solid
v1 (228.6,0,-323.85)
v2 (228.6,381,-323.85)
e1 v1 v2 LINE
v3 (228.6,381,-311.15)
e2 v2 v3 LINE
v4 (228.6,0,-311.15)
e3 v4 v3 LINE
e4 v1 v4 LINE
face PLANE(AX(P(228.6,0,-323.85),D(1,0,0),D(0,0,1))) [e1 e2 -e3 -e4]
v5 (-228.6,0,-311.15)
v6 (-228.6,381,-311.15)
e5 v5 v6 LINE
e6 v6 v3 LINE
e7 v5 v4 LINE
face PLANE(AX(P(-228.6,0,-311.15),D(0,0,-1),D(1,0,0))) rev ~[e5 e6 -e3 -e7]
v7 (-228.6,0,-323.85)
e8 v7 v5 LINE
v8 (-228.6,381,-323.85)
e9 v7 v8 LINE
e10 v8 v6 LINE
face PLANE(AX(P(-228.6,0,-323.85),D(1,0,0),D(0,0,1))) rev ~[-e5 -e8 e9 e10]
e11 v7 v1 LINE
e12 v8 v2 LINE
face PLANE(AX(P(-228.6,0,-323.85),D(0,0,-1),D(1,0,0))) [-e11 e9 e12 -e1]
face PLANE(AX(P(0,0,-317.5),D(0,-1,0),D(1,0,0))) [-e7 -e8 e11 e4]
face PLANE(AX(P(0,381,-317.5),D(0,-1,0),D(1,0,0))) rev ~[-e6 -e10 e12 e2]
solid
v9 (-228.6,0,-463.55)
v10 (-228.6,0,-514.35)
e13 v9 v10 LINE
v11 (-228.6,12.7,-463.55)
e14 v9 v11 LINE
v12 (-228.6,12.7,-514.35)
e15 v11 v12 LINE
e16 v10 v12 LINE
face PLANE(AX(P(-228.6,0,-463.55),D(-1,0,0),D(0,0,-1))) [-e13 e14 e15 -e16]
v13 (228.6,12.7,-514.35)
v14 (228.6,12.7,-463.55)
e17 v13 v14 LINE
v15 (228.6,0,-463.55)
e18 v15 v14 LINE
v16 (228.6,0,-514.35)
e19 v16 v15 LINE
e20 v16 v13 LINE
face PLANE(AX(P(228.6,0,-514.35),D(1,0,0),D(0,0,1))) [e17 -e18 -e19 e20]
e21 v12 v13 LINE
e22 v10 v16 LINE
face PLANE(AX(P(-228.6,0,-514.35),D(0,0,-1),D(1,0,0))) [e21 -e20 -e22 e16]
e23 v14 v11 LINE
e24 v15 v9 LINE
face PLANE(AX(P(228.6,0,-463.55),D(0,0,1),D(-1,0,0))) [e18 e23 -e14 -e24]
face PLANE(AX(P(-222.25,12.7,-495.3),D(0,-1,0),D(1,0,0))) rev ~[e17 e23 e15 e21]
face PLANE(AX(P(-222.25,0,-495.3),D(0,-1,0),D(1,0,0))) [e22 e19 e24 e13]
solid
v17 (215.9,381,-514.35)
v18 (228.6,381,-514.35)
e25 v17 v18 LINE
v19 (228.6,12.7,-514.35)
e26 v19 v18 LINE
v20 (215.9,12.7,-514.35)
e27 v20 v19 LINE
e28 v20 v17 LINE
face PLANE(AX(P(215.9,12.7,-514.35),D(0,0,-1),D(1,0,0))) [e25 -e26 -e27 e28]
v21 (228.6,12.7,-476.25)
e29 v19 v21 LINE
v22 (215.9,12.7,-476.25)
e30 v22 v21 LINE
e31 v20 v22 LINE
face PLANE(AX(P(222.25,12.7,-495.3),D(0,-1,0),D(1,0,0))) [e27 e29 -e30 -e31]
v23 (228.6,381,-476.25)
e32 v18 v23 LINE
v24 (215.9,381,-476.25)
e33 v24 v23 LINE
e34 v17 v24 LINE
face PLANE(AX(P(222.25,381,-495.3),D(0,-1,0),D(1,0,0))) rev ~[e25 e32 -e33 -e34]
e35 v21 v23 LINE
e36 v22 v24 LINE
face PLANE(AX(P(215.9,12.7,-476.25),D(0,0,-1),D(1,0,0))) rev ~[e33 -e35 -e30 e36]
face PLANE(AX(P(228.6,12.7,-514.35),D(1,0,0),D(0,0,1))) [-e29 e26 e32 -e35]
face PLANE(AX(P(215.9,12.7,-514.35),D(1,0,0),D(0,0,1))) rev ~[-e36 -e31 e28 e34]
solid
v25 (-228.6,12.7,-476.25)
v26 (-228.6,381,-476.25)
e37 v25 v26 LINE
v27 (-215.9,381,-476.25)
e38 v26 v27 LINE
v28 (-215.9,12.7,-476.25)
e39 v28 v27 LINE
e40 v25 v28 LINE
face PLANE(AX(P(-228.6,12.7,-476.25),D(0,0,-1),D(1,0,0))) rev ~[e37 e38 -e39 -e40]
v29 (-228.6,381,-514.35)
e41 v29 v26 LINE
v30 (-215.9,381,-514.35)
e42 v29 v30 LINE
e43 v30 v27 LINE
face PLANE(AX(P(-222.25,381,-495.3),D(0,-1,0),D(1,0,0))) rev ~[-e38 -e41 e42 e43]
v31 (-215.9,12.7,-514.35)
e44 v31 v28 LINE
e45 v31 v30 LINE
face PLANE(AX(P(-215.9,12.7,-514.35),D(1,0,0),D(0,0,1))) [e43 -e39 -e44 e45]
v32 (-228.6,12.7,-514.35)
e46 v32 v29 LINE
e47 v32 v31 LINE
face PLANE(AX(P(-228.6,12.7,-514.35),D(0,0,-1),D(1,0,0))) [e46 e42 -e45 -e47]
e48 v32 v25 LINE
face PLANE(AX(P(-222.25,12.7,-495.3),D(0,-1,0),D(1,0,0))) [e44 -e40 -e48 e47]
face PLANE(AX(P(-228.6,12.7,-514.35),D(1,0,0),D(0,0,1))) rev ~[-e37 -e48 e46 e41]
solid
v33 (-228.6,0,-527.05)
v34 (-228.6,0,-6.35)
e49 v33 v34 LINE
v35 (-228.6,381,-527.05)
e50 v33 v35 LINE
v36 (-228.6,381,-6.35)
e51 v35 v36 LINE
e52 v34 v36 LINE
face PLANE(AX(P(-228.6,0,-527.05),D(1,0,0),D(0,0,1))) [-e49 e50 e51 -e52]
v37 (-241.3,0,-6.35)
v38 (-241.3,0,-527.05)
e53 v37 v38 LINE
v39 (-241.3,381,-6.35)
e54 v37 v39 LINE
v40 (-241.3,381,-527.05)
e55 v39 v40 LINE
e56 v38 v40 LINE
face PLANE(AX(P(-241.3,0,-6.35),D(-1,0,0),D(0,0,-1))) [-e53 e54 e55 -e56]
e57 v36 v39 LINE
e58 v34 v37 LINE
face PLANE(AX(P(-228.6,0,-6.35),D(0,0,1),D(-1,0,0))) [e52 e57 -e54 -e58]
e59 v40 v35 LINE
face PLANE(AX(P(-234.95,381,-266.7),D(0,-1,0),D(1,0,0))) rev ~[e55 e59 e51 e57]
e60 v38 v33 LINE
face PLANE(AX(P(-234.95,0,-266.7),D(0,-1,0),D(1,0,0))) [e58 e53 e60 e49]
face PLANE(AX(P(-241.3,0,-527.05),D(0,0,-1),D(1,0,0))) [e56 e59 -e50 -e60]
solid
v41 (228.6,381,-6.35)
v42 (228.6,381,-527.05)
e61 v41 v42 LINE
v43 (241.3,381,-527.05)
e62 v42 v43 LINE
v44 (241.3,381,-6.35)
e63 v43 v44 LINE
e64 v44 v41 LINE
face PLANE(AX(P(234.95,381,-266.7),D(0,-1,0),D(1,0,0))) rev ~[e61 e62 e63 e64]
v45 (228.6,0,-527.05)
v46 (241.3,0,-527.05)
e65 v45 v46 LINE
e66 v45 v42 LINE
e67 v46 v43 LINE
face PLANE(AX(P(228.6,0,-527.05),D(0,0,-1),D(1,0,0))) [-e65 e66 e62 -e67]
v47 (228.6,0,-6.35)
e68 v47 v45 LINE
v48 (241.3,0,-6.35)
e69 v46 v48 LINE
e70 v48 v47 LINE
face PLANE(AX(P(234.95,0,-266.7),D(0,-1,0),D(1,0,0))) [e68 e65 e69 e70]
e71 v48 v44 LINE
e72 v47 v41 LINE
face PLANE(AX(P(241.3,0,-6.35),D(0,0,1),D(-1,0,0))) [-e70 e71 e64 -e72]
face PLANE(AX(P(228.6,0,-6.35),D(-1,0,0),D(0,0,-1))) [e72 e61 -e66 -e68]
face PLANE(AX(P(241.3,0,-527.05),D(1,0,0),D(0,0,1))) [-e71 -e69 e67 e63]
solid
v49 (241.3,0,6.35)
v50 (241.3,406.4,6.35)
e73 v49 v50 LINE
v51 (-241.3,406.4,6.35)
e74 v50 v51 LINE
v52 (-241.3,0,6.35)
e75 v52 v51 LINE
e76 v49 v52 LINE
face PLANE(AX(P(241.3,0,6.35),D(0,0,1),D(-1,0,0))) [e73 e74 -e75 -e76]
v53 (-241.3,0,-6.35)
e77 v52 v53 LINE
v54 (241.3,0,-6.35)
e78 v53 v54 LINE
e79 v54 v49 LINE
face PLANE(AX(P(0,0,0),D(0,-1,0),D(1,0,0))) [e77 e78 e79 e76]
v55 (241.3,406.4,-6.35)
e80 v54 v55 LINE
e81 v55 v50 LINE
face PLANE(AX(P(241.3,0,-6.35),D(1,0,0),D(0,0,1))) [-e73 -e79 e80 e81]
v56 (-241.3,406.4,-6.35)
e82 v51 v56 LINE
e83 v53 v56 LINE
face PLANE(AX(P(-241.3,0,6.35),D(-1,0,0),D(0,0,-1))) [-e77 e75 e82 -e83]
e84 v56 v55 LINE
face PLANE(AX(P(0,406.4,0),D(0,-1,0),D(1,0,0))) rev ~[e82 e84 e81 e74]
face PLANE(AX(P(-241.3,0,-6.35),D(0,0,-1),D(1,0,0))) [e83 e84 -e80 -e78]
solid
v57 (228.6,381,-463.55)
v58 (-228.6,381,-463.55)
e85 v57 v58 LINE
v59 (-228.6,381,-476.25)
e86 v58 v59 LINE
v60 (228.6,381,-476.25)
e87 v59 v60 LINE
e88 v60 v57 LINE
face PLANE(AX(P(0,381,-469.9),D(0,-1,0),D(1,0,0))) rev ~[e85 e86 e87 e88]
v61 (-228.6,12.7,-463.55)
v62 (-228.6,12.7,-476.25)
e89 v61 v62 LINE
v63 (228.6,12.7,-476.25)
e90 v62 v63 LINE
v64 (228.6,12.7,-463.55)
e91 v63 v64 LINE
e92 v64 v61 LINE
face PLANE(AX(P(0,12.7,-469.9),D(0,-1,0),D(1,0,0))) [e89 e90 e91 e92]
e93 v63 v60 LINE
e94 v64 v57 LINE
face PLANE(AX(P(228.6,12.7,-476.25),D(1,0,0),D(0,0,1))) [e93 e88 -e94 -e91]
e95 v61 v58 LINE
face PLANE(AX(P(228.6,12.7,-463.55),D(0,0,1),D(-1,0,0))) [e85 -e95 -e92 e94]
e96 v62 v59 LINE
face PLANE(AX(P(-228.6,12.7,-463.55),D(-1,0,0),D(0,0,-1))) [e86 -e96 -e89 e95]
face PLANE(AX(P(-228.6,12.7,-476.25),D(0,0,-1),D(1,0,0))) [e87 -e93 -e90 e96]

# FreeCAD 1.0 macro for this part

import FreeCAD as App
import Part
import Sketcher

V = App.Vector
Q = App.Units.Quantity

doc = App.newDocument("Part")
body = doc.addObject("PartDesign::Body", "Body")

# Sketch on XZ plane
sketch1 = body.newObject("Sketcher::SketchObject", "Sketch")
sketch1.AttachmentSupport = (doc.getObject("XZ_Plane"), [""])
sketch1.MapMode = "FlatFace"
sketch1.addGeometry([
    Part.LineSegment(V(241, 6, 0), V(-241, 6, 0)),
    Part.LineSegment(V(-241, 6, 0), V(-241, -6, 0)),
    Part.LineSegment(V(-241, -6, 0), V(241, -6, 0)),
    Part.LineSegment(V(241, -6, 0), V(241, 6, 0)),
], False)
sketch1.addConstraint([
    Sketcher.Constraint("Coincident", 0, 2, 1, 1),
    Sketcher.Constraint("Coincident", 1, 2, 2, 1),
    Sketcher.Constraint("Coincident", 2, 2, 3, 1),
    Sketcher.Constraint("Coincident", 3, 2, 0, 1),
    Sketcher.Constraint("Horizontal", 0),
    Sketcher.Constraint("Vertical", 1),
    Sketcher.Constraint("Horizontal", 2),
    Sketcher.Constraint("Vertical", 3),
    Sketcher.Constraint("Symmetric", 0, 2, 2, 2, -1, 1),
    Sketcher.Constraint("DistanceX", 0, 2, 0, 1, Q("19 in")),
    Sketcher.Constraint("DistanceY", 1, 2, 1, 1, Q("0.5 in")),
])
pad1 = body.newObject("PartDesign::Pad", "Pad")
pad1.Profile = sketch1
pad1.Length = Q("16 in")
pad1.Reversed = True
body2 = doc.addObject("PartDesign::Body", "Body001")

# Sketch on XZ plane
sketch2 = body2.newObject("Sketcher::SketchObject", "Sketch001")
sketch2.AttachmentSupport = (doc.getObject("XZ_Plane001"), [""])
sketch2.MapMode = "FlatFace"
sketch2.addGeometry([
    Part.LineSegment(V(-229, -6, 0), V(-241, -6, 0)),
    Part.LineSegment(V(-241, -6, 0), V(-241, -527, 0)),
    Part.LineSegment(V(-241, -527, 0), V(-229, -527, 0)),
    Part.LineSegment(V(-229, -527, 0), V(-229, -6, 0)),
], False)
sketch2.addConstraint([
    Sketcher.Constraint("Coincident", 0, 2, 1, 1),
    Sketcher.Constraint("Coincident", 1, 2, 2, 1),
    Sketcher.Constraint("Coincident", 2, 2, 3, 1),
    Sketcher.Constraint("Coincident", 3, 2, 0, 1),
    Sketcher.Constraint("Horizontal", 0),
    Sketcher.Constraint("Vertical", 1),
    Sketcher.Constraint("Horizontal", 2),
    Sketcher.Constraint("Vertical", 3),
    Sketcher.Constraint("DistanceX", 0, 2, 0, 1, Q("0.5 in")),
    Sketcher.Constraint("DistanceY", 1, 2, 1, 1, Q("20.5 in")),
    Sketcher.Constraint("DistanceX", 2, 2, -1, 1, Q("9 in")),
    Sketcher.Constraint("DistanceY", 0, 2, -1, 1, Q("0.25 in")),
])
pad2 = body2.newObject("PartDesign::Pad", "Pad001")
pad2.Profile = sketch2
pad2.Length = Q("15 in")
pad2.Reversed = True
body3 = doc.addObject("PartDesign::Body", "Body002")

# Sketch on XZ plane
sketch3 = body3.newObject("Sketcher::SketchObject", "Sketch002")
sketch3.AttachmentSupport = (doc.getObject("XZ_Plane002"), [""])
sketch3.MapMode = "FlatFace"
sketch3.addGeometry([
    Part.LineSegment(V(241, -527, 0), V(241, -6, 0)),
    Part.LineSegment(V(241, -6, 0), V(229, -6, 0)),
    Part.LineSegment(V(229, -6, 0), V(229, -527, 0)),
    Part.LineSegment(V(229, -527, 0), V(241, -527, 0)),
], False)
sketch3.addConstraint([
    Sketcher.Constraint("Coincident", 0, 2, 1, 1),
    Sketcher.Constraint("Coincident", 1, 2, 2, 1),
    Sketcher.Constraint("Coincident", 2, 2, 3, 1),
    Sketcher.Constraint("Coincident", 3, 2, 0, 1),
    Sketcher.Constraint("Vertical", 0),
    Sketcher.Constraint("Horizontal", 1),
    Sketcher.Constraint("Vertical", 2),
    Sketcher.Constraint("Horizontal", 3),
    Sketcher.Constraint("DistanceX", 1, 2, 1, 1, Q("0.5 in")),
    Sketcher.Constraint("DistanceY", 0, 1, 0, 2, Q("20.5 in")),
    Sketcher.Constraint("DistanceX", -1, 1, 1, 2, Q("9 in")),
    Sketcher.Constraint("DistanceY", 0, 2, -1, 1, Q("0.25 in")),
])
pad3 = body3.newObject("PartDesign::Pad", "Pad002")
pad3.Profile = sketch3
pad3.Length = Q("15 in")
pad3.Reversed = True
body4 = doc.addObject("PartDesign::Body", "Body003")

# Sketch on XZ plane
sketch4 = body4.newObject("Sketcher::SketchObject", "Sketch003")
sketch4.AttachmentSupport = (doc.getObject("XZ_Plane003"), [""])
sketch4.MapMode = "FlatFace"
sketch4.AttachmentOffset = App.Placement(V(0, 0, -0.5 * 25.4), App.Rotation())
sketch4.addGeometry([
    Part.LineSegment(V(229, -464, 0), V(-229, -464, 0)),
    Part.LineSegment(V(-229, -464, 0), V(-229, -476, 0)),
    Part.LineSegment(V(-229, -476, 0), V(229, -476, 0)),
    Part.LineSegment(V(229, -476, 0), V(229, -464, 0)),
], False)
sketch4.addConstraint([
    Sketcher.Constraint("Coincident", 0, 2, 1, 1),
    Sketcher.Constraint("Coincident", 1, 2, 2, 1),
    Sketcher.Constraint("Coincident", 2, 2, 3, 1),
    Sketcher.Constraint("Coincident", 3, 2, 0, 1),
    Sketcher.Constraint("Horizontal", 0),
    Sketcher.Constraint("Vertical", 1),
    Sketcher.Constraint("Horizontal", 2),
    Sketcher.Constraint("Vertical", 3),
    Sketcher.Constraint("DistanceX", 0, 2, 0, 1, Q("18 in")),
    Sketcher.Constraint("DistanceY", 1, 2, 1, 1, Q("0.5 in")),
    Sketcher.Constraint("DistanceX", 0, 2, -1, 1, Q("9 in")),
    Sketcher.Constraint("DistanceY", 0, 2, -1, 1, Q("18.25 in")),
])
pad4 = body4.newObject("PartDesign::Pad", "Pad003")
pad4.Profile = sketch4
pad4.Length = Q("14.5 in")
pad4.Reversed = True
body5 = doc.addObject("PartDesign::Body", "Body004")

# Sketch on XZ plane
sketch5 = body5.newObject("Sketcher::SketchObject", "Sketch004")
sketch5.AttachmentSupport = (doc.getObject("XZ_Plane004"), [""])
sketch5.MapMode = "FlatFace"
sketch5.AttachmentOffset = App.Placement(V(0, 0, -0.5 * 25.4), App.Rotation())
sketch5.addGeometry([
    Part.LineSegment(V(-229, -476, 0), V(-229, -514, 0)),
    Part.LineSegment(V(-229, -514, 0), V(-216, -514, 0)),
    Part.LineSegment(V(-216, -514, 0), V(-216, -476, 0)),
    Part.LineSegment(V(-216, -476, 0), V(-229, -476, 0)),
], False)
sketch5.addConstraint([
    Sketcher.Constraint("Coincident", 0, 2, 1, 1),
    Sketcher.Constraint("Coincident", 1, 2, 2, 1),
    Sketcher.Constraint("Coincident", 2, 2, 3, 1),
    Sketcher.Constraint("Coincident", 3, 2, 0, 1),
    Sketcher.Constraint("Vertical", 0),
    Sketcher.Constraint("Horizontal", 1),
    Sketcher.Constraint("Vertical", 2),
    Sketcher.Constraint("Horizontal", 3),
    Sketcher.Constraint("DistanceX", 1, 1, 1, 2, Q("0.5 in")),
    Sketcher.Constraint("DistanceY", 0, 2, 0, 1, Q("1.5 in")),
    Sketcher.Constraint("DistanceX", 0, 2, -1, 1, Q("9 in")),
    Sketcher.Constraint("DistanceY", 0, 2, -1, 1, Q("20.25 in")),
])
pad5 = body5.newObject("PartDesign::Pad", "Pad004")
pad5.Profile = sketch5
pad5.Length = Q("14.5 in")
pad5.Reversed = True
body6 = doc.addObject("PartDesign::Body", "Body005")

# Sketch on XZ plane
sketch6 = body6.newObject("Sketcher::SketchObject", "Sketch005")
sketch6.AttachmentSupport = (doc.getObject("XZ_Plane005"), [""])
sketch6.MapMode = "FlatFace"
sketch6.AttachmentOffset = App.Placement(V(0, 0, -0.5 * 25.4), App.Rotation())
sketch6.addGeometry([
    Part.LineSegment(V(216, -476, 0), V(216, -514, 0)),
    Part.LineSegment(V(216, -514, 0), V(229, -514, 0)),
    Part.LineSegment(V(229, -514, 0), V(229, -476, 0)),
    Part.LineSegment(V(229, -476, 0), V(216, -476, 0)),
], False)
sketch6.addConstraint([
    Sketcher.Constraint("Coincident", 0, 2, 1, 1),
    Sketcher.Constraint("Coincident", 1, 2, 2, 1),
    Sketcher.Constraint("Coincident", 2, 2, 3, 1),
    Sketcher.Constraint("Coincident", 3, 2, 0, 1),
    Sketcher.Constraint("Vertical", 0),
    Sketcher.Constraint("Horizontal", 1),
    Sketcher.Constraint("Vertical", 2),
    Sketcher.Constraint("Horizontal", 3),
    Sketcher.Constraint("DistanceX", 1, 1, 1, 2, Q("0.5 in")),
    Sketcher.Constraint("DistanceY", 0, 2, 0, 1, Q("1.5 in")),
    Sketcher.Constraint("DistanceX", -1, 1, 1, 2, Q("9 in")),
    Sketcher.Constraint("DistanceY", 0, 2, -1, 1, Q("20.25 in")),
])
pad6 = body6.newObject("PartDesign::Pad", "Pad005")
pad6.Profile = sketch6
pad6.Length = Q("14.5 in")
pad6.Reversed = True
body7 = doc.addObject("PartDesign::Body", "Body006")

# Sketch on XZ plane
sketch7 = body7.newObject("Sketcher::SketchObject", "Sketch006")
sketch7.AttachmentSupport = (doc.getObject("XZ_Plane006"), [""])
sketch7.MapMode = "FlatFace"
sketch7.addGeometry([
    Part.LineSegment(V(-229, -514, 0), V(229, -514, 0)),
    Part.LineSegment(V(229, -514, 0), V(229, -464, 0)),
    Part.LineSegment(V(229, -464, 0), V(-229, -464, 0)),
    Part.LineSegment(V(-229, -464, 0), V(-229, -514, 0)),
], False)
sketch7.addConstraint([
    Sketcher.Constraint("Coincident", 0, 2, 1, 1),
    Sketcher.Constraint("Coincident", 1, 2, 2, 1),
    Sketcher.Constraint("Coincident", 2, 2, 3, 1),
    Sketcher.Constraint("Coincident", 3, 2, 0, 1),
    Sketcher.Constraint("Horizontal", 0),
    Sketcher.Constraint("Vertical", 1),
    Sketcher.Constraint("Horizontal", 2),
    Sketcher.Constraint("Vertical", 3),
    Sketcher.Constraint("DistanceX", 0, 1, 0, 2, Q("18 in")),
    Sketcher.Constraint("DistanceY", 1, 1, 1, 2, Q("2 in")),
    Sketcher.Constraint("DistanceX", -1, 1, 0, 2, Q("9 in")),
    Sketcher.Constraint("DistanceY", 0, 2, -1, 1, Q("20.25 in")),
])
pad7 = body7.newObject("PartDesign::Pad", "Pad006")
pad7.Profile = sketch7
pad7.Length = Q("0.5 in")
pad7.Reversed = True
body8 = doc.addObject("PartDesign::Body", "Body007")

# Sketch on XZ plane
sketch8 = body8.newObject("Sketcher::SketchObject", "Sketch007")
sketch8.AttachmentSupport = (doc.getObject("XZ_Plane007"), [""])
sketch8.MapMode = "FlatFace"
sketch8.addGeometry([
    Part.LineSegment(V(-229, -311, 0), V(-229, -324, 0)),
    Part.LineSegment(V(-229, -324, 0), V(229, -324, 0)),
    Part.LineSegment(V(229, -324, 0), V(229, -311, 0)),
    Part.LineSegment(V(229, -311, 0), V(-229, -311, 0)),
], False)
sketch8.addConstraint([
    Sketcher.Constraint("Coincident", 0, 2, 1, 1),
    Sketcher.Constraint("Coincident", 1, 2, 2, 1),
    Sketcher.Constraint("Coincident", 2, 2, 3, 1),
    Sketcher.Constraint("Coincident", 3, 2, 0, 1),
    Sketcher.Constraint("Vertical", 0),
    Sketcher.Constraint("Horizontal", 1),
    Sketcher.Constraint("Vertical", 2),
    Sketcher.Constraint("Horizontal", 3),
    Sketcher.Constraint("DistanceX", 1, 1, 1, 2, Q("18 in")),
    Sketcher.Constraint("DistanceY", 0, 2, 0, 1, Q("0.5 in")),
    Sketcher.Constraint("DistanceX", 0, 2, -1, 1, Q("9 in")),
    Sketcher.Constraint("DistanceY", 0, 2, -1, 1, Q("12.75 in")),
])
pad8 = body8.newObject("PartDesign::Pad", "Pad007")
pad8.Profile = sketch8
pad8.Length = Q("15 in")
pad8.Reversed = True

doc.recompute()
